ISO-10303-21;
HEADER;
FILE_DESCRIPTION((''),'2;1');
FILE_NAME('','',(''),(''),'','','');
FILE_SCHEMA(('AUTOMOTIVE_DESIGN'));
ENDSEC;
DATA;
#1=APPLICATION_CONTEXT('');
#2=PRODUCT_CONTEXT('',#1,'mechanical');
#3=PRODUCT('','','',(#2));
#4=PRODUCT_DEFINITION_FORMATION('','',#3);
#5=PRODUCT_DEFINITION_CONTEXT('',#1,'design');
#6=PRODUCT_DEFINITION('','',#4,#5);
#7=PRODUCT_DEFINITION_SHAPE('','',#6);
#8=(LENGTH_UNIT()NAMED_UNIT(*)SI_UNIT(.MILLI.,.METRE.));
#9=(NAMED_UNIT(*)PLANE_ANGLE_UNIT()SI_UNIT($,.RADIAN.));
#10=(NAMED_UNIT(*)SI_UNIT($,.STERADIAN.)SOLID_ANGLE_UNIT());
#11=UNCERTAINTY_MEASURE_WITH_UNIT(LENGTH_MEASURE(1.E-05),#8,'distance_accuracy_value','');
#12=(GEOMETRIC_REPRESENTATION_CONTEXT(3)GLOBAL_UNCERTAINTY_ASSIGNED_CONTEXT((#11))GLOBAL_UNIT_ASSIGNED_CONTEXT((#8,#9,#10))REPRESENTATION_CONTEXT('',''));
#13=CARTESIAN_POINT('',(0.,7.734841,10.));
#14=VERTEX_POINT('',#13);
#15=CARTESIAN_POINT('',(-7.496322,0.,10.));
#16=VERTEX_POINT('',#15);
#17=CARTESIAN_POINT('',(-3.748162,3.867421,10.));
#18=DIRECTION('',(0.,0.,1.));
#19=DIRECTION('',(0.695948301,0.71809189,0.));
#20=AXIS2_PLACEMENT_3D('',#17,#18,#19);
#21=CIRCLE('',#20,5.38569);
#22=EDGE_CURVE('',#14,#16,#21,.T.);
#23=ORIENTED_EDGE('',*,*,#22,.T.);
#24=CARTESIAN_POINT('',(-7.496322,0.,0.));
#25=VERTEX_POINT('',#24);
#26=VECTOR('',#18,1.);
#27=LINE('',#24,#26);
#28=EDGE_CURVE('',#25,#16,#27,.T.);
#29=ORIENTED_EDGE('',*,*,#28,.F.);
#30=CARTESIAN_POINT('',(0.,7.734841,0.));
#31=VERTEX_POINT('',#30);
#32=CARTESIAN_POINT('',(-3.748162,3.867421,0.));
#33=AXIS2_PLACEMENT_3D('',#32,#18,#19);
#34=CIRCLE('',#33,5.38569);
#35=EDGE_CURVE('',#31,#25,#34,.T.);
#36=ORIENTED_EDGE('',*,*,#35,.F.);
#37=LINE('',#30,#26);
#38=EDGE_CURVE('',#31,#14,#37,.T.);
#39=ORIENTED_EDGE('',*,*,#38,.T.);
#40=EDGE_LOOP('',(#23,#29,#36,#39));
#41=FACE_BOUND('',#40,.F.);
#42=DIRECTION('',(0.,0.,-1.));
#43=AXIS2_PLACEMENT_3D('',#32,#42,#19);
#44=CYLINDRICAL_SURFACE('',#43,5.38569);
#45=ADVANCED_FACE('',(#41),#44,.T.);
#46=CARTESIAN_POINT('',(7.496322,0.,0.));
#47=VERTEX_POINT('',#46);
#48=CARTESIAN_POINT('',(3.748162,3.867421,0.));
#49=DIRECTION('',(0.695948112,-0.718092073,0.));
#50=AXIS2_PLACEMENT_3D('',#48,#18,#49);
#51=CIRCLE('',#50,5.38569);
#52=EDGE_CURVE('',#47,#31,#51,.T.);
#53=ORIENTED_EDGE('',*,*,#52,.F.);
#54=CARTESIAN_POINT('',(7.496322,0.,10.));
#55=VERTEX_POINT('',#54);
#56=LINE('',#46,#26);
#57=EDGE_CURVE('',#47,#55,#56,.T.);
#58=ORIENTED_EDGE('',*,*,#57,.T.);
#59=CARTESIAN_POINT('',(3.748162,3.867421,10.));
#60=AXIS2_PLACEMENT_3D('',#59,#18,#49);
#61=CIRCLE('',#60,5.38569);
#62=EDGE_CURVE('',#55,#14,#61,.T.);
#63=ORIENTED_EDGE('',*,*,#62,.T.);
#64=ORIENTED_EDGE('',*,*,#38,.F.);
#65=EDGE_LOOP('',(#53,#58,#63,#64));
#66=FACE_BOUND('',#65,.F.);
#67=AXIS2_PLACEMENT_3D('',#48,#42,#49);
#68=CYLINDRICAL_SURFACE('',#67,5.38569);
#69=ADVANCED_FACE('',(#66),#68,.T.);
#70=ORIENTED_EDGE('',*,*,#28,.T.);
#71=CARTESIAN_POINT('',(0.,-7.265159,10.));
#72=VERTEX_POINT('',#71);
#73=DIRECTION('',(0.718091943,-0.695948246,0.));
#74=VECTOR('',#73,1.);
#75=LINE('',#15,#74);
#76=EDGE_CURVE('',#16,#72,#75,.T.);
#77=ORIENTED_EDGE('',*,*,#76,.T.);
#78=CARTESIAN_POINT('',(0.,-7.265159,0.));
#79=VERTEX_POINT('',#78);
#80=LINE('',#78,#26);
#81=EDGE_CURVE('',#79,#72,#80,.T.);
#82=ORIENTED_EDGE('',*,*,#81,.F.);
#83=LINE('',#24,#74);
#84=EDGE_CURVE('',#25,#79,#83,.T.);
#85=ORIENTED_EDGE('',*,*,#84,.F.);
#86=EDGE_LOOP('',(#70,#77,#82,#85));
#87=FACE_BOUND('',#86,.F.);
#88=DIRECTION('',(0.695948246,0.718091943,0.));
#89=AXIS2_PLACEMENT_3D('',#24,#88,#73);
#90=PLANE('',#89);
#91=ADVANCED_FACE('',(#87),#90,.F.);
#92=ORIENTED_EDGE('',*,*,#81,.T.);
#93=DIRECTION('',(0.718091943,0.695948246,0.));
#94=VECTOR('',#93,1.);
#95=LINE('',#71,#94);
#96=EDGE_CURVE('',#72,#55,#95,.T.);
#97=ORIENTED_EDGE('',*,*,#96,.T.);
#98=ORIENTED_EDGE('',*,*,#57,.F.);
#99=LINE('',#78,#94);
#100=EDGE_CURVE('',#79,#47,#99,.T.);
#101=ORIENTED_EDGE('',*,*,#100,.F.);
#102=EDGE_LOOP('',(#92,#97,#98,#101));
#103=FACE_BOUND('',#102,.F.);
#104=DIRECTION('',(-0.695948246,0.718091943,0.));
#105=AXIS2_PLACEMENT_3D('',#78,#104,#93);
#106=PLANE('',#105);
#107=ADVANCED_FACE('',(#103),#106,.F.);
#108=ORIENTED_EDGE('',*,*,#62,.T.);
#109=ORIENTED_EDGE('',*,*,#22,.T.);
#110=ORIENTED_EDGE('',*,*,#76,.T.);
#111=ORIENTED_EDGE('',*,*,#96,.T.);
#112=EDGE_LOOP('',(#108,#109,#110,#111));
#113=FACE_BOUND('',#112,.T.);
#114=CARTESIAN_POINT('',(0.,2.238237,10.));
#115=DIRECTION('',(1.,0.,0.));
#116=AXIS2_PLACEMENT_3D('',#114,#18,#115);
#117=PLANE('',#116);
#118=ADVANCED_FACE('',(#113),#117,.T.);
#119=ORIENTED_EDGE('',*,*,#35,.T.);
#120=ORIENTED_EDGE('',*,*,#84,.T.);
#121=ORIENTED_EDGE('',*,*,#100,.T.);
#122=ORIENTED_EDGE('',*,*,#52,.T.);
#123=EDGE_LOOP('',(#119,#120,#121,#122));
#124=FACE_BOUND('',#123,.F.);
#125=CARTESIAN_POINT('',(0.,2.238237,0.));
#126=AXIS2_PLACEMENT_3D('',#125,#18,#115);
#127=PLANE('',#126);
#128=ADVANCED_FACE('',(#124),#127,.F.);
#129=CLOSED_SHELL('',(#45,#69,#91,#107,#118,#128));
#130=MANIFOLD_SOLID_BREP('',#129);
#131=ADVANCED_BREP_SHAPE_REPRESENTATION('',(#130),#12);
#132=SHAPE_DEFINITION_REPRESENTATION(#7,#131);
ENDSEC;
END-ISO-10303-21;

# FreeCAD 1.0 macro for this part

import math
import FreeCAD as App
import Part
import Sketcher
from FreeCAD import Vector
Q = App.Units.Quantity

doc = App.newDocument("Part")
body = doc.addObject("PartDesign::Body", "Body")

sketch1 = body.newObject("Sketcher::SketchObject", "Sketch")
sketch1.AttachmentSupport = (doc.getObject("XY_Plane"), [""])
sketch1.MapMode = "FlatFace"
sketch1.addGeometry([
    Part.LineSegment(Vector(-7.496322, 0, 0), Vector(0, -7.265159, 0)),
    Part.LineSegment(Vector(0, -7.265159, 0), Vector(7.496322, 0, 0)),
    Part.ArcOfCircle(Part.Circle(Vector(3.748162, 3.867421, 0), Vector(0, 0, 1), 5.38569), math.radians(-45.897182), math.radians(134.102833)),
    Part.ArcOfCircle(Part.Circle(Vector(-3.748162, 3.867421, 0), Vector(0, 0, 1), 5.38569), math.radians(45.897167), math.radians(225.897182)),
], False)
sketch1.addConstraint([
    Sketcher.Constraint("Coincident", 0, 2, 1, 1),
    Sketcher.Constraint("Tangent", 1, 2, 2, 1),
    Sketcher.Constraint("Coincident", 2, 2, 3, 1),
    Sketcher.Constraint("Tangent", 3, 2, 0, 1),
    Sketcher.Constraint("Equal", 2, 3),
    Sketcher.Constraint("Symmetric", 1, 2, 3, 2, -1, 1),
    Sketcher.Constraint("Symmetric", 2, 3, 3, 3, -2),
    Sketcher.Constraint("DistanceY", 0, 2, 2, 2, Q("15 mm")),
    Sketcher.Constraint("Radius", 2, Q("5.38569 mm")),
    Sketcher.Constraint("DistanceX", -1, 1, 2, 3, Q("3.748162 mm")),
])
pad1 = body.newObject("PartDesign::Pad", "Pad")
pad1.Profile = sketch1
pad1.Length = 10

doc.recompute()
